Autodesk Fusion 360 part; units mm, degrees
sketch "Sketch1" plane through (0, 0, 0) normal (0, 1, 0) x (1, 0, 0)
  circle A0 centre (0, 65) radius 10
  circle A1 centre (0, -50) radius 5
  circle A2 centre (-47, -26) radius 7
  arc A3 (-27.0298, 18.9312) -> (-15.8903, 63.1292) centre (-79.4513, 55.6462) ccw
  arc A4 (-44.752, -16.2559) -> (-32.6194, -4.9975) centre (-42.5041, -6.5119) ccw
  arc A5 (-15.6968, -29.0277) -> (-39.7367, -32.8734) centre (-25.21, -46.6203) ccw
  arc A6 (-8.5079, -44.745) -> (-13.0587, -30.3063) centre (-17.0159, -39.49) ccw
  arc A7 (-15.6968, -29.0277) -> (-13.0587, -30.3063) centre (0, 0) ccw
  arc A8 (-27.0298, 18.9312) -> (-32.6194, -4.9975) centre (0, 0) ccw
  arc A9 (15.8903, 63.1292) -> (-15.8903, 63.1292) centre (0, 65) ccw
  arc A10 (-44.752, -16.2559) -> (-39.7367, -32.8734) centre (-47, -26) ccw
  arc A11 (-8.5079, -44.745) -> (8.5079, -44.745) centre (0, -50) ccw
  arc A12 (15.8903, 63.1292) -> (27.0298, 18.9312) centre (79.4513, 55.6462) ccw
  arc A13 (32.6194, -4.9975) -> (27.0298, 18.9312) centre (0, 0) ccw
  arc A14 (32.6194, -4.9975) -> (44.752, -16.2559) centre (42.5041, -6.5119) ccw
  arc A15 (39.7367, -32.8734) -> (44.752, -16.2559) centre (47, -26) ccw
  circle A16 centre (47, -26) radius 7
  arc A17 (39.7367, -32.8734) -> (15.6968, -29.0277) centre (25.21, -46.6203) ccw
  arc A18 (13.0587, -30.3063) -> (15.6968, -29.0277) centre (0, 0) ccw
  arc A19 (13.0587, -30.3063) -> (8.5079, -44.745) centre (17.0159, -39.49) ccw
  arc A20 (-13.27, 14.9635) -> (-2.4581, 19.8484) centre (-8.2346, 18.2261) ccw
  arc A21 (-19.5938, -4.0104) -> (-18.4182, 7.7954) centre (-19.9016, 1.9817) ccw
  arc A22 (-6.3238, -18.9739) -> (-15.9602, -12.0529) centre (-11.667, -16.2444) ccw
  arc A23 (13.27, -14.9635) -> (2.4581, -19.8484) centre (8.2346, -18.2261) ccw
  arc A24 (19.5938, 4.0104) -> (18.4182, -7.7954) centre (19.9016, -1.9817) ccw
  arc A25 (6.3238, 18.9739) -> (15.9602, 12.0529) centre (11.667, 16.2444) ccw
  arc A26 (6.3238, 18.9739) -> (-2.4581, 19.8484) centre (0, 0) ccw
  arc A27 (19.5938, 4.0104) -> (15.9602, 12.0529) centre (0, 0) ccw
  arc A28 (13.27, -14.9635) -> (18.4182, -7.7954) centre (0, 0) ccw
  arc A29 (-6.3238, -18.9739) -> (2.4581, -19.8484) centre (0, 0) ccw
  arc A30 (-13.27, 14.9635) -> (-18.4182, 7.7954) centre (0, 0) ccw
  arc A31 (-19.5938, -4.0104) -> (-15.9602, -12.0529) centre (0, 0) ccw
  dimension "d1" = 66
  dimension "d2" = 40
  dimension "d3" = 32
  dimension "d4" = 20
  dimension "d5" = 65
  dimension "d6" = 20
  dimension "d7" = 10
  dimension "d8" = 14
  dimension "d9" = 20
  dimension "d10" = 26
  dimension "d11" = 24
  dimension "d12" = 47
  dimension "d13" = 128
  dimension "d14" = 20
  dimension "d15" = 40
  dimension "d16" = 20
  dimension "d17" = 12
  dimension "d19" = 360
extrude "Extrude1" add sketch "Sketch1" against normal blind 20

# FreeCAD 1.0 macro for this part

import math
import FreeCAD as App
import Part
import Sketcher

V = App.Vector

doc = App.newDocument("Part")
body = doc.addObject("PartDesign::Body", "Body")

# Sketch on XZ plane
sketch1 = body.newObject("Sketcher::SketchObject", "Sketch")
sketch1.AttachmentSupport = (doc.getObject("XZ_Plane"), [""])
sketch1.MapMode = "FlatFace"
sketch1.addGeometry(Part.ArcOfCircle(Part.Circle(V(-79.5, -55.6, 0), V(0, 0, 1), 64), math.radians(-7), math.radians(35)), False)
sketch1.addGeometry(Part.ArcOfCircle(Part.Circle(V(0, 0, 0), V(0, 0, 1), 33), math.radians(171), math.radians(215)), False)
sketch1.addGeometry(Part.ArcOfCircle(Part.Circle(V(-42.5, 6.5, 0), V(0, 0, 1), 10), math.radians(-9), math.radians(103)), False)
sketch1.addGeometry(Part.ArcOfCircle(Part.Circle(V(-47, 26, 0), V(0, 0, 1), 10), math.radians(43), math.radians(283)), False)
sketch1.addGeometry(Part.ArcOfCircle(Part.Circle(V(-25.2, 46.6, 0), V(0, 0, 1), 20), math.radians(-137), math.radians(-62)), False)
sketch1.addGeometry(Part.ArcOfCircle(Part.Circle(V(0, 0, 0), V(0, 0, 1), 33), math.radians(113.31), math.radians(118.4)), False)
sketch1.addGeometry(Part.ArcOfCircle(Part.Circle(V(-17, 39.5, 0), V(0, 0, 1), 10), math.radians(-67), math.radians(32)), False)
sketch1.addGeometry(Part.ArcOfCircle(Part.Circle(V(0, 50, 0), V(0, 0, 1), 10), math.radians(-32), math.radians(212)), False)
sketch1.addGeometry(Part.ArcOfCircle(Part.Circle(V(17, 39.5, 0), V(0, 0, 1), 10), math.radians(148), math.radians(247)), False)
sketch1.addGeometry(Part.ArcOfCircle(Part.Circle(V(0, 0, 0), V(0, 0, 1), 33), math.radians(61.59), math.radians(66.69)), False)
sketch1.addGeometry(Part.ArcOfCircle(Part.Circle(V(25.2, 46.6, 0), V(0, 0, 1), 20), math.radians(-118), math.radians(-43)), False)
sketch1.addGeometry(Part.ArcOfCircle(Part.Circle(V(47, 26, 0), V(0, 0, 1), 10), math.radians(-103), math.radians(137)), False)
sketch1.addGeometry(Part.ArcOfCircle(Part.Circle(V(42.5, 6.5, 0), V(0, 0, 1), 10), math.radians(77), math.radians(189)), False)
sketch1.addGeometry(Part.ArcOfCircle(Part.Circle(V(0, 0, 0), V(0, 0, 1), 33), math.radians(-35), math.radians(9)), False)
sketch1.addGeometry(Part.ArcOfCircle(Part.Circle(V(79.5, -55.6, 0), V(0, 0, 1), 64), math.radians(145), math.radians(187)), False)
sketch1.addGeometry(Part.ArcOfCircle(Part.Circle(V(0, -65, 0), V(0, 0, 1), 16), math.radians(173), math.radians(367)), False)
sketch1.addGeometry(Part.Circle(V(-47, 26, 0), V(0, 0, 1), 7), False)
sketch1.addGeometry(Part.Circle(V(0, 50, 0), V(0, 0, 1), 5), False)
sketch1.addGeometry(Part.Circle(V(47, 26, 0), V(0, 0, 1), 7), False)
sketch1.addGeometry(Part.ArcOfCircle(Part.Circle(V(0, 0, 0), V(0, 0, 1), 20), math.radians(-157), math.radians(-132)), False)
sketch1.addGeometry(Part.ArcOfCircle(Part.Circle(V(-8.2, -18.2, 0), V(0, 0, 1), 6), math.radians(-16), math.radians(147)), False)
sketch1.addGeometry(Part.ArcOfCircle(Part.Circle(V(0, 0, 0), V(0, 0, 1), 20), math.radians(-97), math.radians(-72)), False)
sketch1.addGeometry(Part.ArcOfCircle(Part.Circle(V(11.7, -16.2, 0), V(0, 0, 1), 6), math.radians(44), math.radians(207)), False)
sketch1.addGeometry(Part.ArcOfCircle(Part.Circle(V(0, 0, 0), V(0, 0, 1), 20), math.radians(-37), math.radians(-12)), False)
sketch1.addGeometry(Part.ArcOfCircle(Part.Circle(V(19.9, 2, 0), V(0, 0, 1), 6), math.radians(104), math.radians(267)), False)
sketch1.addGeometry(Part.ArcOfCircle(Part.Circle(V(0, 0, 0), V(0, 0, 1), 20), math.radians(23), math.radians(48)), False)
sketch1.addGeometry(Part.ArcOfCircle(Part.Circle(V(8.2, 18.2, 0), V(0, 0, 1), 6), math.radians(164), math.radians(327)), False)
sketch1.addGeometry(Part.ArcOfCircle(Part.Circle(V(0, 0, 0), V(0, 0, 1), 20), math.radians(83), math.radians(108)), False)
sketch1.addGeometry(Part.ArcOfCircle(Part.Circle(V(-11.7, 16.2, 0), V(0, 0, 1), 6), math.radians(-136), math.radians(27)), False)
sketch1.addGeometry(Part.ArcOfCircle(Part.Circle(V(0, 0, 0), V(0, 0, 1), 20), math.radians(143), math.radians(168)), False)
sketch1.addGeometry(Part.ArcOfCircle(Part.Circle(V(-19.9, -2, 0), V(0, 0, 1), 6), math.radians(-76), math.radians(87)), False)
sketch1.addGeometry(Part.Circle(V(0, -65, 0), V(0, 0, 1), 10), False)
sketch1.addConstraint(Sketcher.Constraint("Tangent", 0, 2, 1, 2))
sketch1.addConstraint(Sketcher.Constraint("Tangent", 1, 1, 2, 1))
sketch1.addConstraint(Sketcher.Constraint("Tangent", 2, 2, 3, 2))
sketch1.addConstraint(Sketcher.Constraint("Tangent", 3, 1, 4, 1))
sketch1.addConstraint(Sketcher.Constraint("Tangent", 4, 2, 5, 2))
sketch1.addConstraint(Sketcher.Constraint("Tangent", 5, 1, 6, 1))
sketch1.addConstraint(Sketcher.Constraint("Tangent", 6, 2, 7, 2))
sketch1.addConstraint(Sketcher.Constraint("Tangent", 7, 1, 8, 1))
sketch1.addConstraint(Sketcher.Constraint("Tangent", 8, 2, 9, 2))
sketch1.addConstraint(Sketcher.Constraint("Tangent", 9, 1, 10, 1))
sketch1.addConstraint(Sketcher.Constraint("Tangent", 10, 2, 11, 2))
sketch1.addConstraint(Sketcher.Constraint("Tangent", 11, 1, 12, 1))
sketch1.addConstraint(Sketcher.Constraint("Tangent", 12, 2, 13, 2))
sketch1.addConstraint(Sketcher.Constraint("Tangent", 13, 1, 14, 1))
sketch1.addConstraint(Sketcher.Constraint("Tangent", 14, 2, 15, 2))
sketch1.addConstraint(Sketcher.Constraint("Tangent", 15, 1, 0, 1))
sketch1.addConstraint(Sketcher.Constraint("Coincident", 19, 2, 20, 2))
sketch1.addConstraint(Sketcher.Constraint("Coincident", 20, 1, 21, 1))
sketch1.addConstraint(Sketcher.Constraint("Coincident", 21, 2, 22, 2))
sketch1.addConstraint(Sketcher.Constraint("Coincident", 22, 1, 23, 1))
sketch1.addConstraint(Sketcher.Constraint("Coincident", 23, 2, 24, 2))
sketch1.addConstraint(Sketcher.Constraint("Coincident", 24, 1, 25, 1))
sketch1.addConstraint(Sketcher.Constraint("Coincident", 25, 2, 26, 2))
sketch1.addConstraint(Sketcher.Constraint("Coincident", 26, 1, 27, 1))
sketch1.addConstraint(Sketcher.Constraint("Coincident", 27, 2, 28, 2))
sketch1.addConstraint(Sketcher.Constraint("Coincident", 28, 1, 29, 1))
sketch1.addConstraint(Sketcher.Constraint("Coincident", 29, 2, 30, 2))
sketch1.addConstraint(Sketcher.Constraint("Coincident", 30, 1, 19, 1))
sketch1.addConstraint(Sketcher.Constraint("Coincident", 1, 3, -1, 1))
sketch1.addConstraint(Sketcher.Constraint("Coincident", 13, 3, -1, 1))
sketch1.addConstraint(Sketcher.Constraint("Coincident", 19, 3, -1, 1))
sketch1.addConstraint(Sketcher.Constraint("Coincident", 21, 3, -1, 1))
sketch1.addConstraint(Sketcher.Constraint("Coincident", 23, 3, -1, 1))
sketch1.addConstraint(Sketcher.Constraint("Coincident", 25, 3, -1, 1))
sketch1.addConstraint(Sketcher.Constraint("Coincident", 27, 3, -1, 1))
sketch1.addConstraint(Sketcher.Constraint("Coincident", 29, 3, -1, 1))
sketch1.addConstraint(Sketcher.Constraint("Coincident", 16, 3, 3, 3))
sketch1.addConstraint(Sketcher.Constraint("Coincident", 17, 3, 7, 3))
sketch1.addConstraint(Sketcher.Constraint("Coincident", 18, 3, 11, 3))
sketch1.addConstraint(Sketcher.Constraint("Coincident", 31, 3, 15, 3))
sketch1.addConstraint(Sketcher.Constraint("Equal", 2, 3))
sketch1.addConstraint(Sketcher.Constraint("Equal", 3, 6))
sketch1.addConstraint(Sketcher.Constraint("Equal", 6, 7))
sketch1.addConstraint(Sketcher.Constraint("Equal", 7, 8))
sketch1.addConstraint(Sketcher.Constraint("Equal", 4, 10))
sketch1.addConstraint(Sketcher.Constraint("Equal", 8, 11))
sketch1.addConstraint(Sketcher.Constraint("Equal", 11, 12))
sketch1.addConstraint(Sketcher.Constraint("Equal", 1, 13))
sketch1.addConstraint(Sketcher.Constraint("Equal", 0, 14))
sketch1.addConstraint(Sketcher.Constraint("Equal", 16, 18))
sketch1.addConstraint(Sketcher.Constraint("Equal", 10, 19))
sketch1.addConstraint(Sketcher.Constraint("Equal", 19, 21))
sketch1.addConstraint(Sketcher.Constraint("Equal", 20, 22))
sketch1.addConstraint(Sketcher.Constraint("Equal", 21, 23))
sketch1.addConstraint(Sketcher.Constraint("Equal", 22, 24))
sketch1.addConstraint(Sketcher.Constraint("Equal", 23, 25))
sketch1.addConstraint(Sketcher.Constraint("Equal", 24, 26))
sketch1.addConstraint(Sketcher.Constraint("Equal", 25, 27))
sketch1.addConstraint(Sketcher.Constraint("Equal", 26, 28))
sketch1.addConstraint(Sketcher.Constraint("Equal", 27, 29))
sketch1.addConstraint(Sketcher.Constraint("Equal", 28, 30))
sketch1.addConstraint(Sketcher.Constraint("Equal", 12, 31))
sketch1.addConstraint(Sketcher.Constraint("Symmetric", 20, 3, 26, 3, -1, 1))
sketch1.addConstraint(Sketcher.Constraint("Symmetric", 22, 3, 28, 3, -1, 1))
sketch1.addConstraint(Sketcher.Constraint("Symmetric", 24, 3, 30, 3, -1, 1))
sketch1.addConstraint(Sketcher.Constraint("Symmetric", 6, 3, 8, 3, -2))
sketch1.addConstraint(Sketcher.Constraint("Symmetric", 4, 3, 10, 3, -2))
sketch1.addConstraint(Sketcher.Constraint("PointOnObject", 15, 3, -2))
sketch1.addConstraint(Sketcher.Constraint("Horizontal", 3, 3, 11, 3))
sketch1.addConstraint(Sketcher.Constraint("Diameter", 16, 14.0))
sketch1.addConstraint(Sketcher.Constraint("Diameter", 17, 10.0))
sketch1.addConstraint(Sketcher.Constraint("Diameter", 31, 20.0))
sketch1.addConstraint(Sketcher.Constraint("Radius", 0, 64.0))
sketch1.addConstraint(Sketcher.Constraint("Radius", 1, 33.0))
sketch1.addConstraint(Sketcher.Constraint("Radius", 4, 20.0))
sketch1.addConstraint(Sketcher.Constraint("Radius", 15, 16.0))
sketch1.addConstraint(Sketcher.Constraint("Radius", 20, 6.0))
sketch1.addConstraint(Sketcher.Constraint("DistanceX", 3, 3, -1, 1, 47.0))
sketch1.addConstraint(Sketcher.Constraint("DistanceY", -1, 1, 3, 3, 26.0))
sketch1.addConstraint(Sketcher.Constraint("DistanceY", 15, 3, -1, 1, 65.0))
sketch1.addConstraint(Sketcher.Constraint("DistanceY", 3, 3, 7, 3, 24.0))
sketch1.addConstraint(Sketcher.Constraint("Radius", 5, 33.035))
sketch1.addConstraint(Sketcher.Constraint("Radius", 9, 32.965))
sketch1.addConstraint(Sketcher.Constraint("DistanceX", 5, 3, 8, 3, 17.0))
sketch1.addConstraint(Sketcher.Constraint("DistanceY", 0, 2, 5, 3, 18.9))
sketch1.addConstraint(Sketcher.Constraint("DistanceX", 19, 2, -1, 1, 13.27))
sketch1.addConstraint(Sketcher.Constraint("DistanceX", 9, 3, 26, 3, 8.22))
sketch1.addConstraint(Sketcher.Constraint("DistanceX", -1, 1, 22, 3, 11.667))
sketch1.addConstraint(Sketcher.Constraint("DistanceY", 21, 2, -1, 1, 18.974))
sketch1.addConstraint(Sketcher.Constraint("DistanceX", 9, 3, 24, 3, 19.887))
sketch1.addConstraint(Sketcher.Constraint("DistanceY", 5, 3, 24, 3, 2.013))
pad1 = body.newObject("PartDesign::Pad", "Pad")
pad1.Profile = sketch1
pad1.Length = 20

doc.recompute()
